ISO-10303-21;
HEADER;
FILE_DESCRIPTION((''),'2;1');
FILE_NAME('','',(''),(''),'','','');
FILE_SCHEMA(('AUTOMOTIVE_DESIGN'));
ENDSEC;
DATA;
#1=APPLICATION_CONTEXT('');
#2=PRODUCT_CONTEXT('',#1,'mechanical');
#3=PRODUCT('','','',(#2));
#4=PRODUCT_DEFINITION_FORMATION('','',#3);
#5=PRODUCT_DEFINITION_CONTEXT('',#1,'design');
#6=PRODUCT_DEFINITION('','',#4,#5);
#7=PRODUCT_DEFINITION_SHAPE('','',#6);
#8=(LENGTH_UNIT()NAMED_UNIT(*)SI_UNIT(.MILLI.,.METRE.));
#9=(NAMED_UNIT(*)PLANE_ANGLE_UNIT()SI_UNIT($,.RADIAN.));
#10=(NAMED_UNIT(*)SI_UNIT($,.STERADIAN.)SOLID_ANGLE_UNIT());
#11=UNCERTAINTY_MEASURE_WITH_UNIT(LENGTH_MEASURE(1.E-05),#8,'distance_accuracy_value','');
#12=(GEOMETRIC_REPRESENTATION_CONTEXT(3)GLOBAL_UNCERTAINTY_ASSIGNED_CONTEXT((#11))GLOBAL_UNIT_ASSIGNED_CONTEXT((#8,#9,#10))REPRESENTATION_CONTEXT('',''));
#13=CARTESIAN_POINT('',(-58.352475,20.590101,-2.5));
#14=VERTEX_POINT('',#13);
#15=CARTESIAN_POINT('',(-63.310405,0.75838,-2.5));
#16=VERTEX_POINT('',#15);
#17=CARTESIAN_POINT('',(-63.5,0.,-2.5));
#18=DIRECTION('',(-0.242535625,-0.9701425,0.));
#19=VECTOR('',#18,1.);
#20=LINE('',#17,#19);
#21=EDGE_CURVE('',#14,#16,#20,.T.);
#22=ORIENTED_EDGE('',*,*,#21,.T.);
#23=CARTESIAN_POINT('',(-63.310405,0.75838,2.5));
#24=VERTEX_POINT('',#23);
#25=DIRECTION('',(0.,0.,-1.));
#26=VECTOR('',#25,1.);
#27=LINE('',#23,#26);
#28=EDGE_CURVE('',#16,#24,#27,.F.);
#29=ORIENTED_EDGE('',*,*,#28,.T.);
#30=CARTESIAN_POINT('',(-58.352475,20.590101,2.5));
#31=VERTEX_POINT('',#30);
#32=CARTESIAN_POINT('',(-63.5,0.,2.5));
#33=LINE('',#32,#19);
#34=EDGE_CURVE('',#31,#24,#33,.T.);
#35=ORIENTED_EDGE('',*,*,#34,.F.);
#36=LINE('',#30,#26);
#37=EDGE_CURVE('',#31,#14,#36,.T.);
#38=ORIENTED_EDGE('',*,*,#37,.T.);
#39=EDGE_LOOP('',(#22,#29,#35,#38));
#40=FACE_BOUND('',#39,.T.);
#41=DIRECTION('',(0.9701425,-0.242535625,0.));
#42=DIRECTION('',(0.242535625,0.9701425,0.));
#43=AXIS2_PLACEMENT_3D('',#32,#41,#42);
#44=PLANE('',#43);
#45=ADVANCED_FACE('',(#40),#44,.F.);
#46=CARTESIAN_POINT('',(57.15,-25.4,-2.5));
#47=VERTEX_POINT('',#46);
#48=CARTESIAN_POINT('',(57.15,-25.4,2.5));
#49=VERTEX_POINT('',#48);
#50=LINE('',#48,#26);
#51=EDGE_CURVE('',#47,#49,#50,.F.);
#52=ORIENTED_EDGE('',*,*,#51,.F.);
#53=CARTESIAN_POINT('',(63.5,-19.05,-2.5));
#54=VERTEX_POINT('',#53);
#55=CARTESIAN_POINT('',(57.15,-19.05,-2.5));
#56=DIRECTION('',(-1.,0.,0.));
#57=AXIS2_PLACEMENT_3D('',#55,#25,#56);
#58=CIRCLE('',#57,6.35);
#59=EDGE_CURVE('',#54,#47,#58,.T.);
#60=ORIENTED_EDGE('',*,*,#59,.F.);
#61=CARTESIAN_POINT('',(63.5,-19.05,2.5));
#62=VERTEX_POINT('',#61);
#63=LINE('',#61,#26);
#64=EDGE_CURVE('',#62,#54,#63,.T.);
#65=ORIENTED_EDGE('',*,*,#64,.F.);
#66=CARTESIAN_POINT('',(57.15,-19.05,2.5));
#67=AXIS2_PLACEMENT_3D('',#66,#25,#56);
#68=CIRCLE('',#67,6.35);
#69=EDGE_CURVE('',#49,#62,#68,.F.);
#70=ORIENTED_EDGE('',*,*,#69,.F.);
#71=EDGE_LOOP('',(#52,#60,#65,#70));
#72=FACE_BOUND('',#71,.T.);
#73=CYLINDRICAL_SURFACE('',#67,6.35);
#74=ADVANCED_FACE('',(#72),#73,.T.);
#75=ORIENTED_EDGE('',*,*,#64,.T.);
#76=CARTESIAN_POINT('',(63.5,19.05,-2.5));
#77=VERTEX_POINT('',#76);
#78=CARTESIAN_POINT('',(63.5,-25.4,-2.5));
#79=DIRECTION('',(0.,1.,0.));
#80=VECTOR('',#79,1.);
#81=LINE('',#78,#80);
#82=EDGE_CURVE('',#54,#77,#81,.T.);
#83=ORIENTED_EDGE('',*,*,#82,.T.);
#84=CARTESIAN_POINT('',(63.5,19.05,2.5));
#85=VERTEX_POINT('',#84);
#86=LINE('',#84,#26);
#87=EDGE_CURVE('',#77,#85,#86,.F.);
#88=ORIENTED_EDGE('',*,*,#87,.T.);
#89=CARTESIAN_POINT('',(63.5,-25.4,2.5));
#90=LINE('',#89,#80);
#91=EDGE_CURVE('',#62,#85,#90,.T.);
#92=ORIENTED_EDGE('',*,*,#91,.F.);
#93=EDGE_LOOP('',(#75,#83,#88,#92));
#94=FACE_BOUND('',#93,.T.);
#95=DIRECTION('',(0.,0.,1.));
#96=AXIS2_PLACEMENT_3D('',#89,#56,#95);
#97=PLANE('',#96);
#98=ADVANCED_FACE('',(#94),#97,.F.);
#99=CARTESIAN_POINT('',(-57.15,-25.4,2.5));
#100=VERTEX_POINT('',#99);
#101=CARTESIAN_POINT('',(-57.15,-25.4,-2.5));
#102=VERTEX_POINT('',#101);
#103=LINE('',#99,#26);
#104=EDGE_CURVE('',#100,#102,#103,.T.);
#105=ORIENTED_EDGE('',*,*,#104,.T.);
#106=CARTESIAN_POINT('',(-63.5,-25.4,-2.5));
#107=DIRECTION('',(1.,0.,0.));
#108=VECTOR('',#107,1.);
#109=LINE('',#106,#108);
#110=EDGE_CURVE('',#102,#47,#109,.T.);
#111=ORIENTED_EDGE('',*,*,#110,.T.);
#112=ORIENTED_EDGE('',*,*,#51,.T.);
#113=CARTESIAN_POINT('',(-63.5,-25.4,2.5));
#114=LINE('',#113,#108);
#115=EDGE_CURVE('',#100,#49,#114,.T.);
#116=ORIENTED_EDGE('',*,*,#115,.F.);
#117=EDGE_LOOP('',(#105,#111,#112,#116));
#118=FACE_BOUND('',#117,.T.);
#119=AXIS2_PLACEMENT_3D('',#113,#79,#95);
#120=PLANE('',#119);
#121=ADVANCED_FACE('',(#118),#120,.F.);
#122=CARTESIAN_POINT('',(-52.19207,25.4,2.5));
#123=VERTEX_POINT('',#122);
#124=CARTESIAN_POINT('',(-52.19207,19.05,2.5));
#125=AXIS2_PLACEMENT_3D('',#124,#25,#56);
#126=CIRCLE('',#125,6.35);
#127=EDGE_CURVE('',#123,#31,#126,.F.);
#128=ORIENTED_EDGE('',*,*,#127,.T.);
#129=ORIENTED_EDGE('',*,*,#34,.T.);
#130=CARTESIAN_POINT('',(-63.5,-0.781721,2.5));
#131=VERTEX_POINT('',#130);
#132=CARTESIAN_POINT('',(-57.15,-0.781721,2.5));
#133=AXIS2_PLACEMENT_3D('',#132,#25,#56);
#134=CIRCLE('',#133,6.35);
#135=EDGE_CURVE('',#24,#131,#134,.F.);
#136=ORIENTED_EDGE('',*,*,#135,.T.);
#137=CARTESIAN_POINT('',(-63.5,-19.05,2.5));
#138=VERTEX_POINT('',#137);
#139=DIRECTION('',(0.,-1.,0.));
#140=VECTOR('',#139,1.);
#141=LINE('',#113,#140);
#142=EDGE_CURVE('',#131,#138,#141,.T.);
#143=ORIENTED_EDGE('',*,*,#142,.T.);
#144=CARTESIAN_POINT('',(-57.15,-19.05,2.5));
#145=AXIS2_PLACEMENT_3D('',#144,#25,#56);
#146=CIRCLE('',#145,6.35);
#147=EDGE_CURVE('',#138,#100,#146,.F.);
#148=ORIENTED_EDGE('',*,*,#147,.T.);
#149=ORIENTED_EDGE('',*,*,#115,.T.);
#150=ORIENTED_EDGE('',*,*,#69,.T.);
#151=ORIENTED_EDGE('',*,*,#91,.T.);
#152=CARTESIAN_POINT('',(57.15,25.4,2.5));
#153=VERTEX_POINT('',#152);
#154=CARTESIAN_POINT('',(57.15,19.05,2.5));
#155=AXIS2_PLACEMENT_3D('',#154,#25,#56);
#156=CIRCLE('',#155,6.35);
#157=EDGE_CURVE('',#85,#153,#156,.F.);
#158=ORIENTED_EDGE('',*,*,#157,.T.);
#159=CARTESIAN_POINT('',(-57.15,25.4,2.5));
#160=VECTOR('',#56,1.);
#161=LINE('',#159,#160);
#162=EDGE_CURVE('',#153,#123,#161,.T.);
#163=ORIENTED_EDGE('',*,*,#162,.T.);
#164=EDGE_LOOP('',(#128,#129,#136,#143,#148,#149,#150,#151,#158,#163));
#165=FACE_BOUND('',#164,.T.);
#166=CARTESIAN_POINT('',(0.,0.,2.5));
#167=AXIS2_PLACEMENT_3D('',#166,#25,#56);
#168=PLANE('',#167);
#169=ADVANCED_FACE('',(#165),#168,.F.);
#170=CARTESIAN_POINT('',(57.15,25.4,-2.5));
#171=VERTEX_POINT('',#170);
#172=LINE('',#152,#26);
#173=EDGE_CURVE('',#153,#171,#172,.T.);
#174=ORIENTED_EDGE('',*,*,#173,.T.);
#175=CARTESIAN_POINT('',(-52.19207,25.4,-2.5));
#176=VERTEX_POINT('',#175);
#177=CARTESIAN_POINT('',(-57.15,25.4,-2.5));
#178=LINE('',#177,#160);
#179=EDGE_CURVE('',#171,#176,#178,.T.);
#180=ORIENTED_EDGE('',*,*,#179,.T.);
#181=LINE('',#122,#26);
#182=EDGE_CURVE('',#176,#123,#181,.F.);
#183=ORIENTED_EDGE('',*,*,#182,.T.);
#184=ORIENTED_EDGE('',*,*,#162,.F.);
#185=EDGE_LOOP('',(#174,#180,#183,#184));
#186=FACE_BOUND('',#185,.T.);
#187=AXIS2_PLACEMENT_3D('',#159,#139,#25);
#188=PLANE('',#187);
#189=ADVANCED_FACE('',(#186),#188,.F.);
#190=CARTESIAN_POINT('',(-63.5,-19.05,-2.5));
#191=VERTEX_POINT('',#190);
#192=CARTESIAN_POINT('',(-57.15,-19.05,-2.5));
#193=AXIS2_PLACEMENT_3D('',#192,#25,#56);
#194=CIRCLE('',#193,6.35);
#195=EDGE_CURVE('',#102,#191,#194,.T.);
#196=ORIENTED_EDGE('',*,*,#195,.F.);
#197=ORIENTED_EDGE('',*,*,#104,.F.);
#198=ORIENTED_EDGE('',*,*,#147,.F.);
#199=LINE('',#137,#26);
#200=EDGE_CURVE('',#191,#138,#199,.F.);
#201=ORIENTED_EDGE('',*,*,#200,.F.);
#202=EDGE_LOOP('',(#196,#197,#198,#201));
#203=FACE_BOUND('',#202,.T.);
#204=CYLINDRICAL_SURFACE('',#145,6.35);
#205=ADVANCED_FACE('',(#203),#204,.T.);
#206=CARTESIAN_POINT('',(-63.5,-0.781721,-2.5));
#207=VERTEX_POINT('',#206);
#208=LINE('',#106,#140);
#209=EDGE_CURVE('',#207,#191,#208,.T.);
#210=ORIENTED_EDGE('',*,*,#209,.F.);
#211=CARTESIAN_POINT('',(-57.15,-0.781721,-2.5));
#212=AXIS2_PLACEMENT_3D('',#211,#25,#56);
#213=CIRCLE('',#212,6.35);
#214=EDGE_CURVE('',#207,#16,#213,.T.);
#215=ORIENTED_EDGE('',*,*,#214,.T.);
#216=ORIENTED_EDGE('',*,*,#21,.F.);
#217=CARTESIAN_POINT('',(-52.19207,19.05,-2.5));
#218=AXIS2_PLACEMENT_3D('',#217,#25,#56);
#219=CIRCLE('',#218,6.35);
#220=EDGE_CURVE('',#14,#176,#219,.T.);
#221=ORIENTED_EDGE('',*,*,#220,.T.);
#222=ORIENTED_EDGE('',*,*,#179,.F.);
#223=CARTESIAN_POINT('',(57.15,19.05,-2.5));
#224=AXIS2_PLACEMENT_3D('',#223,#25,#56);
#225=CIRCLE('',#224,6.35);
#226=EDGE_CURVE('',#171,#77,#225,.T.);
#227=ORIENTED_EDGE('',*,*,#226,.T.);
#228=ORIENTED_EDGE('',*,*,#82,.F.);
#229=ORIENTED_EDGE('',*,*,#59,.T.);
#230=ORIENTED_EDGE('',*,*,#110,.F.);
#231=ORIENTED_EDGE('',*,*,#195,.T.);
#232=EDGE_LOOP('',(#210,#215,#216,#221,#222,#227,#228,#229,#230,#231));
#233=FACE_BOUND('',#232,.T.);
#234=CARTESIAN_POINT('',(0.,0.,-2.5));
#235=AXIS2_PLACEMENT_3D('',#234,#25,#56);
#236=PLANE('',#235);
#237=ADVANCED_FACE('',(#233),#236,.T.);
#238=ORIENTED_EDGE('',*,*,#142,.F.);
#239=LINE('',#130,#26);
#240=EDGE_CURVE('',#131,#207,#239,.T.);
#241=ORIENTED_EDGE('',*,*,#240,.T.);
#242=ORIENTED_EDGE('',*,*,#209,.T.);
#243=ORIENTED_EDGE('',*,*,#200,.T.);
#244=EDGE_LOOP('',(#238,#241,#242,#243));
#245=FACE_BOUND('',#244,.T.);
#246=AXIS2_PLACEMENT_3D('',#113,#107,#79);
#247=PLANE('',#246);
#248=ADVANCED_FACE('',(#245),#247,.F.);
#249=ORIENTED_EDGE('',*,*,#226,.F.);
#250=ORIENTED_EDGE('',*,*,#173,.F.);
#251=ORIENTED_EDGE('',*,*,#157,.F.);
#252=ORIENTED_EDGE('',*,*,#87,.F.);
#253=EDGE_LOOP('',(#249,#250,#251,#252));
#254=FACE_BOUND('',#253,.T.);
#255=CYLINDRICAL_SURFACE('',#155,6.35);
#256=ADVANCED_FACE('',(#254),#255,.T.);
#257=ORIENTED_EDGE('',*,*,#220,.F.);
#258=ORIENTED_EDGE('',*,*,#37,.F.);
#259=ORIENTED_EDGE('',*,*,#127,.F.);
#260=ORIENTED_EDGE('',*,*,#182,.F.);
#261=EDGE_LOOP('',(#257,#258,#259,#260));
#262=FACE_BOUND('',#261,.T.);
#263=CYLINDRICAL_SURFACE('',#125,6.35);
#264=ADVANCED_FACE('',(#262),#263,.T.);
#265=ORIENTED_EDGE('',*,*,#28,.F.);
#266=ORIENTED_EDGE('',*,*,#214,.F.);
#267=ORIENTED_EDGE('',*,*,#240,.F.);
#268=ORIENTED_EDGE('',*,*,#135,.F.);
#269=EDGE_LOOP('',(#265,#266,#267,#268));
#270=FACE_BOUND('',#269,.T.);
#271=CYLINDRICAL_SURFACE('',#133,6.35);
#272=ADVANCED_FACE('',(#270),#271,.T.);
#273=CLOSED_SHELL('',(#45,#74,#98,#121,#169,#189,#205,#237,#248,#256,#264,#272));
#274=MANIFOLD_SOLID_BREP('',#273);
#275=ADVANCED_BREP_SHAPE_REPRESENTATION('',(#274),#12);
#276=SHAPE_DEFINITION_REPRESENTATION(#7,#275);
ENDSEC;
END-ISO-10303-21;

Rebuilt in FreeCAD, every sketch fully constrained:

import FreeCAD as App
import Part
import Sketcher
Q = App.Units.Quantity


def edges_at(feature, points):
    """Names of the edges that pass closest to the given points."""
    edges = feature.Shape.Edges
    near = lambda p: min(range(len(edges)), key=lambda i: edges[i].distToShape(Part.Vertex(*p))[0])
    return sorted({f"Edge{near(p) + 1}" for p in points})


def add_polygon(sketch, points):
    """Adds a closed chain of lines whose ends are joined by coincident constraints."""
    first, n = sketch.GeometryCount, len(points)
    for a, b in zip(points, points[1:] + points[:1]):
        sketch.addGeometry(Part.LineSegment(App.Vector(*a, 0), App.Vector(*b, 0)), False)
    for i in range(n):
        sketch.addConstraint(Sketcher.Constraint("Coincident", first + i, 2, first + (i + 1) % n, 1))

doc = App.newDocument("Part")
body = doc.addObject("PartDesign::Body", "Body")

# Sketch on XY plane
sketch1 = body.newObject("Sketcher::SketchObject", "Sketch")
sketch1.AttachmentSupport = (doc.getObject("XY_Plane"), [""])
sketch1.MapMode = "FlatFace"
add_polygon(sketch1, [(-57, 25), (-64, 0), (-64, -25), (64, -25), (64, 25)])  # lines 0-4
sketch1.addConstraint([
    Sketcher.Constraint("Vertical", 1),
    Sketcher.Constraint("Horizontal", 2),
    Sketcher.Constraint("Vertical", 3),
    Sketcher.Constraint("Horizontal", 4),
    Sketcher.Constraint("Symmetric", 1, 2, 3, 2, -1, 1),
    Sketcher.Constraint("PointOnObject", 0, 2, -1),
    Sketcher.Constraint("DistanceX", 2, 1, 2, 2, Q("5 in")),
    Sketcher.Constraint("DistanceY", 1, 2, 1, 1, Q("1 in")),
    Sketcher.Constraint("DistanceX", 4, 2, 4, 1, Q("4.75 in")),
])
pad1 = body.newObject("PartDesign::Pad", "Pad")
pad1.Profile = sketch1
pad1.Length = 5
pad1.Midplane = True
doc.recompute()

fillet = body.newObject("PartDesign::Fillet", "Fillet")
fillet.Base = (pad1, edges_at(pad1, [
    (63.5, -25.4, 0),
    (-63.5, -25.4, 0),
    (-63.5, 0, 0),
    (-57.15, 25.4, 0),
    (63.5, 25.4, 0),
]))
fillet.Radius = Q("0.25 in")

doc.recompute()
